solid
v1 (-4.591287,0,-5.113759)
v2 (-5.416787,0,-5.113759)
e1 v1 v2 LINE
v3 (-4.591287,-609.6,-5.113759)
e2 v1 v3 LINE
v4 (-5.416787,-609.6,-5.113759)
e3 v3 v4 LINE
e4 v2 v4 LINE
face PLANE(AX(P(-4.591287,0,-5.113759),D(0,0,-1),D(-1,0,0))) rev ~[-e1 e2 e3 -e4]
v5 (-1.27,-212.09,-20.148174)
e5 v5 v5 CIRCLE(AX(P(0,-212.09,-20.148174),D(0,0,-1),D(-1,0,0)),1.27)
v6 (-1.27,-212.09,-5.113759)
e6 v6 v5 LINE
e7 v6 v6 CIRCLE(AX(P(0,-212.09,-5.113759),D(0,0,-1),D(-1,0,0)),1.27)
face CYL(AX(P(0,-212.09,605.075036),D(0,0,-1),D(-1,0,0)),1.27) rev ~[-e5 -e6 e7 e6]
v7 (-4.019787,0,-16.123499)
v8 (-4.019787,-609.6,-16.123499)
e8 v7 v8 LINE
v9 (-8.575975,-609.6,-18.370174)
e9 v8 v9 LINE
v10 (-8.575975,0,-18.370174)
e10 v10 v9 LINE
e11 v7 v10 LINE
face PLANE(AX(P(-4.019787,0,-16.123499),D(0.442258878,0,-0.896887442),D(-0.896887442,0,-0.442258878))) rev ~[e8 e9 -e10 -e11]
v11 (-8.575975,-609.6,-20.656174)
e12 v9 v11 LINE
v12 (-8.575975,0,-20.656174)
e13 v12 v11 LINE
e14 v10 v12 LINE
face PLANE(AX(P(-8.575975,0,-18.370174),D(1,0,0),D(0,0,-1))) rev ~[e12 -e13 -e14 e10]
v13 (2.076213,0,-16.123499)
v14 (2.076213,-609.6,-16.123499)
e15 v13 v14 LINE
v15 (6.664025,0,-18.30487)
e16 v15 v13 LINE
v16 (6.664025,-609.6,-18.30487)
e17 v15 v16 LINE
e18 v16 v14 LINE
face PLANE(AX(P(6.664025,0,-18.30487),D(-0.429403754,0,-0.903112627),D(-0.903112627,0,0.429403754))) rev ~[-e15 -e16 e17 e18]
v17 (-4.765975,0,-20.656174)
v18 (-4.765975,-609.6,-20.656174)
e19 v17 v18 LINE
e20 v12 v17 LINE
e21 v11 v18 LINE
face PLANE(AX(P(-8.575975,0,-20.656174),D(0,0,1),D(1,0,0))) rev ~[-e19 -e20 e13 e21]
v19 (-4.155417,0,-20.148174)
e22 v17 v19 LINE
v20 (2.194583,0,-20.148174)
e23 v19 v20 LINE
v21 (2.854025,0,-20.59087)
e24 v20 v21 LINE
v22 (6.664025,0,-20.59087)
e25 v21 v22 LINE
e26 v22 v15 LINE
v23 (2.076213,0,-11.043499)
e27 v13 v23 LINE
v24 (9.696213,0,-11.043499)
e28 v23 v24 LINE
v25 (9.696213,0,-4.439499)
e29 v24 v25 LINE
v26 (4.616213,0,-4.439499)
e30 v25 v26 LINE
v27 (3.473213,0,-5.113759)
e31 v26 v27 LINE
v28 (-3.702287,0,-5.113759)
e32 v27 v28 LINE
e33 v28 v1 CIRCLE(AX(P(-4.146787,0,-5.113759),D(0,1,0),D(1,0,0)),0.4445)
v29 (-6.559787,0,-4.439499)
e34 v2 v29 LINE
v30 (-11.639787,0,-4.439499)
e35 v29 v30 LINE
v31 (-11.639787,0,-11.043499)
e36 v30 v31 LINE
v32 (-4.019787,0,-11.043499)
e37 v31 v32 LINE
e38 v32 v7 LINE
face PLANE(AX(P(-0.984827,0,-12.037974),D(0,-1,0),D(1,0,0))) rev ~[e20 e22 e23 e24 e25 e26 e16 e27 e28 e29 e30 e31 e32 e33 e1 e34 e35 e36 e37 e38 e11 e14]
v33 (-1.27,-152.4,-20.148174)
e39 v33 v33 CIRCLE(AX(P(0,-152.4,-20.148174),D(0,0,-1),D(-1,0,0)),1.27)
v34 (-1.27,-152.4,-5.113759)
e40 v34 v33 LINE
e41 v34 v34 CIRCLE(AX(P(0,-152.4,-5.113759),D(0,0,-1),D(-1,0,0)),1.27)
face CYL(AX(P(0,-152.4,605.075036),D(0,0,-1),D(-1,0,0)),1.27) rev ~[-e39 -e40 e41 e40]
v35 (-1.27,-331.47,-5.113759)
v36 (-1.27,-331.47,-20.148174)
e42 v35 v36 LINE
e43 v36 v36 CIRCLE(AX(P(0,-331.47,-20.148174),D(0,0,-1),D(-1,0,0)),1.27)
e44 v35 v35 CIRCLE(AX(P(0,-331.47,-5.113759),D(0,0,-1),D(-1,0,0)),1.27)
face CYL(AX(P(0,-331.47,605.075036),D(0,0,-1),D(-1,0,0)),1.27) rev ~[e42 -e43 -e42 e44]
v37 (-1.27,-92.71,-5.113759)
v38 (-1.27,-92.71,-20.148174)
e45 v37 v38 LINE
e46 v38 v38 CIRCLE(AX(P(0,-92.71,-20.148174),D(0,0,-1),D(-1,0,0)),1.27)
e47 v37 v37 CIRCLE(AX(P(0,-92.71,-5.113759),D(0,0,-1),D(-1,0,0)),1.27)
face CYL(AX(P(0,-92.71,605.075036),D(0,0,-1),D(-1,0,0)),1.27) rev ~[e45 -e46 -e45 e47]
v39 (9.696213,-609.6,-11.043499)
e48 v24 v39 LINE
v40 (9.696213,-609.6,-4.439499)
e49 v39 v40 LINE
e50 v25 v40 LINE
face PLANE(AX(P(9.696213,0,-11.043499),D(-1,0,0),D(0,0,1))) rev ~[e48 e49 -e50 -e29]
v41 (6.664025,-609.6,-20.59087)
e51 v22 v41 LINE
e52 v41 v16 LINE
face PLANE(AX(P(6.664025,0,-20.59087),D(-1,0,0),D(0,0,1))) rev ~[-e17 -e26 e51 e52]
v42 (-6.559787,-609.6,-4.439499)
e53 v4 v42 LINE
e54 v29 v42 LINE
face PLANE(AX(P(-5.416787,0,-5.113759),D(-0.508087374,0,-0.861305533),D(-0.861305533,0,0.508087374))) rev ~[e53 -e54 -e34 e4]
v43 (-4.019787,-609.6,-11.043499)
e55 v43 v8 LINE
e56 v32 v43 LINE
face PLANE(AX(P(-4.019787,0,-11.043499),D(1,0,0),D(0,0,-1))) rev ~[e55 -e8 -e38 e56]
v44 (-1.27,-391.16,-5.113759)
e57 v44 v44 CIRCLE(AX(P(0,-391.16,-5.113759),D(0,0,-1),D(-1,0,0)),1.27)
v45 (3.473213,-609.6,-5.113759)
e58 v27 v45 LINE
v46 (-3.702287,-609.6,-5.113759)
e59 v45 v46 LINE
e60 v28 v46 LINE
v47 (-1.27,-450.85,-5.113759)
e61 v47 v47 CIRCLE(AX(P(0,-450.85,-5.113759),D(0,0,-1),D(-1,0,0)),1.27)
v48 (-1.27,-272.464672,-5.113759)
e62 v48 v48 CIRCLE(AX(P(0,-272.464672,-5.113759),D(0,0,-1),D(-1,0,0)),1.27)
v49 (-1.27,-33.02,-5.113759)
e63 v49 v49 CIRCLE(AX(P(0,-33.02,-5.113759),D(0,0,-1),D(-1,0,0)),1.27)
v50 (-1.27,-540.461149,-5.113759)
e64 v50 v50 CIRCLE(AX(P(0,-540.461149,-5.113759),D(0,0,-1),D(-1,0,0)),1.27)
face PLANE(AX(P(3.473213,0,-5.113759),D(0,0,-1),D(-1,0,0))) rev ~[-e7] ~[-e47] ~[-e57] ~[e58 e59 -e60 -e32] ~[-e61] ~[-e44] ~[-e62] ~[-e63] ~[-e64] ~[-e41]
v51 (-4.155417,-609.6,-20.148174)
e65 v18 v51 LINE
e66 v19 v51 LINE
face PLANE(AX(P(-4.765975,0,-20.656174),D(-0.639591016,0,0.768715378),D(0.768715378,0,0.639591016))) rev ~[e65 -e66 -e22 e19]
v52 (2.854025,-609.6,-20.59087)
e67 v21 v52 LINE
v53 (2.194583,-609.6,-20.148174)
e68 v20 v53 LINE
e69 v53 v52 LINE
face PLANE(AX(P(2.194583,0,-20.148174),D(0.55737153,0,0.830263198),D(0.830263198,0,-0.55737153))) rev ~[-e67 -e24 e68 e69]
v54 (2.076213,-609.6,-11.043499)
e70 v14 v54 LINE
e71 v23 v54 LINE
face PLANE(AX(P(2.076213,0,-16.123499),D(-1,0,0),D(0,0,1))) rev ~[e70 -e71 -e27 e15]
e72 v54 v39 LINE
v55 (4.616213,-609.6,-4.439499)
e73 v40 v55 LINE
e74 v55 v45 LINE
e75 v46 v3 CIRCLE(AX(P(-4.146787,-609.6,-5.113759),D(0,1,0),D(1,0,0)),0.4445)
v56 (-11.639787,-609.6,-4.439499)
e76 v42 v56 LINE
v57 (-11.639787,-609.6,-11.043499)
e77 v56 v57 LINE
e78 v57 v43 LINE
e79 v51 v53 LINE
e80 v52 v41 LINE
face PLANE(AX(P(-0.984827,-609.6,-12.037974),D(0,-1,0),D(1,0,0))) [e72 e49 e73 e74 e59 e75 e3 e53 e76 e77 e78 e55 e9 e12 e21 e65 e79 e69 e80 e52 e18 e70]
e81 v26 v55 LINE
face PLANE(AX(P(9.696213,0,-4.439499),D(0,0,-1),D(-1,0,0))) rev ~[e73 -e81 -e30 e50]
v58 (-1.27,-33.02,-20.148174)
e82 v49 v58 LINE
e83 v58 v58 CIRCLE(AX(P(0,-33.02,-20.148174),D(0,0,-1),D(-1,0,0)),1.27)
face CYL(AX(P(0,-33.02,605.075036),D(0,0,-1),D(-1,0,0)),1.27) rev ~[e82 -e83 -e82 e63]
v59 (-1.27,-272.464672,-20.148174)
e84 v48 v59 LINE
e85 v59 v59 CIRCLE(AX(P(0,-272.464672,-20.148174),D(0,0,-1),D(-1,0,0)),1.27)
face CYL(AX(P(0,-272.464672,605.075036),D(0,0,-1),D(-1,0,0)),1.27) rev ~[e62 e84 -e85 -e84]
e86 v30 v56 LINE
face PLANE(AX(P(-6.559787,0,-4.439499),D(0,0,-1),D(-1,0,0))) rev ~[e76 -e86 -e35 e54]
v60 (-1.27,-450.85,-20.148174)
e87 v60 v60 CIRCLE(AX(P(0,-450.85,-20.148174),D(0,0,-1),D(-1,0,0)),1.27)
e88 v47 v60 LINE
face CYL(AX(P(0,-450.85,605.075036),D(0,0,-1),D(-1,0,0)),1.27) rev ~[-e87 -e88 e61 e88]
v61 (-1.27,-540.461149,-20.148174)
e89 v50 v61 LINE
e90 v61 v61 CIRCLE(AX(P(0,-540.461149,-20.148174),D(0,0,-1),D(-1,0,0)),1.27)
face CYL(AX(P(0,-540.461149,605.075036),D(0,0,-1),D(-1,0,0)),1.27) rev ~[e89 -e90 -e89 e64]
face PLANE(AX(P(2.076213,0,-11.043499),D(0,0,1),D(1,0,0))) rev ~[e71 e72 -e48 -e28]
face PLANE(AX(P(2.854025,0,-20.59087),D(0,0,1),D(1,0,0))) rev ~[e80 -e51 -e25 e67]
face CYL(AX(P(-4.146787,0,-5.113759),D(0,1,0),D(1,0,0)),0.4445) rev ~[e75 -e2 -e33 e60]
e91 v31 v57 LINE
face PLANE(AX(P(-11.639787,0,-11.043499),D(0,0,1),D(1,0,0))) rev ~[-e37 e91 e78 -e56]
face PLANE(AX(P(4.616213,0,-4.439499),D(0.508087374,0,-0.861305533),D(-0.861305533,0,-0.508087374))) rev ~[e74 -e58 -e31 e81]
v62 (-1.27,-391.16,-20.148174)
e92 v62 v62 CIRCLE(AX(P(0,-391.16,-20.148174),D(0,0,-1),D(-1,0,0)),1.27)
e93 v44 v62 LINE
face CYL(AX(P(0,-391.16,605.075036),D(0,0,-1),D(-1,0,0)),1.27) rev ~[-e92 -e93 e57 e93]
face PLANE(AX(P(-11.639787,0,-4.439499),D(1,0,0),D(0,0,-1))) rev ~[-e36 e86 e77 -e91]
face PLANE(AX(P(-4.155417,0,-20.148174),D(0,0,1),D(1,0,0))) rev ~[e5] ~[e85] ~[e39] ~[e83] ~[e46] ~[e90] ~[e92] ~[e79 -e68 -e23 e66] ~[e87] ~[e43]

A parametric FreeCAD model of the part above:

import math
import FreeCAD as App
import Part
import Sketcher
Q = App.Units.Quantity

doc = App.newDocument("Part")
params = doc.addObject("Spreadsheet::Sheet", "Params")
for row, (alias, value) in enumerate([
    ("sketch1_width", "0.2 in"),
    ("sketch1_width2", "0.3 in"),
    ("sketch1_length", "0.2 in"),
    ("sketch1_width3", "0.15 in"),
    ("sketch1_width4", "0.25 in"),
    ("pad1_length", "24 in"),
    ("sketch2_diameter", "0.1 in"),
    ("hole_diameter", "0.1 in"),
], start=1):
    params.set(f"A{row}", alias)
    params.set(f"B{row}", "=" + value)
    params.setAlias(f"B{row}", alias)

body = doc.addObject("PartDesign::Body", "Body")

# Sketch on XZ plane
sketch1 = body.newObject("Sketcher::SketchObject", "Sketch")
sketch1.AttachmentSupport = (doc.getObject("XZ_Plane"), [""])
sketch1.MapMode = "FlatFace"
sketch1.addGeometry([
    Part.LineSegment(App.Vector(-6.56, -4.44, 0), App.Vector(-11.64, -4.44, 0)),  # 0
    Part.LineSegment(App.Vector(-11.64, -4.44, 0), App.Vector(-11.64, -11.04, 0)),  # 1
    Part.LineSegment(App.Vector(-11.64, -11.04, 0), App.Vector(-4.02, -11.04, 0)),  # 2
    Part.LineSegment(App.Vector(-4.02, -11.04, 0), App.Vector(-4.02, -16.12, 0)),  # 3
    Part.LineSegment(App.Vector(-4.02, -16.12, 0), App.Vector(-8.58, -18.37, 0)),  # 4
    Part.LineSegment(App.Vector(-8.58, -18.37, 0), App.Vector(-8.58, -20.66, 0)),  # 5
    Part.LineSegment(App.Vector(-8.58, -20.66, 0), App.Vector(-4.77, -20.66, 0)),  # 6
    Part.LineSegment(App.Vector(-4.77, -20.66, 0), App.Vector(-4.16, -20.15, 0)),  # 7
    Part.LineSegment(App.Vector(-4.16, -20.15, 0), App.Vector(2.19, -20.15, 0)),  # 8
    Part.LineSegment(App.Vector(2.19, -20.15, 0), App.Vector(2.85, -20.59, 0)),  # 9
    Part.LineSegment(App.Vector(2.85, -20.59, 0), App.Vector(6.66, -20.59, 0)),  # 10
    Part.LineSegment(App.Vector(6.66, -20.59, 0), App.Vector(6.66, -18.3, 0)),  # 11
    Part.LineSegment(App.Vector(6.66, -18.3, 0), App.Vector(2.08, -16.12, 0)),  # 12
    Part.LineSegment(App.Vector(2.08, -16.12, 0), App.Vector(2.08, -11.04, 0)),  # 13
    Part.LineSegment(App.Vector(2.08, -11.04, 0), App.Vector(9.7, -11.04, 0)),  # 14
    Part.LineSegment(App.Vector(9.7, -11.04, 0), App.Vector(9.7, -4.44, 0)),  # 15
    Part.LineSegment(App.Vector(9.7, -4.44, 0), App.Vector(4.62, -4.44, 0)),  # 16
    Part.LineSegment(App.Vector(4.62, -4.44, 0), App.Vector(3.47, -5.11, 0)),  # 17
    Part.LineSegment(App.Vector(3.47, -5.11, 0), App.Vector(-3.7, -5.11, 0)),  # 18
    Part.ArcOfCircle(Part.Circle(App.Vector(-4.15, -5.11, 0), App.Vector(0, 0, 1), 0.44), math.radians(180), math.radians(360)),  # 19
    Part.LineSegment(App.Vector(-4.59, -5.11, 0), App.Vector(-5.42, -5.11, 0)),  # 20
    Part.LineSegment(App.Vector(-5.42, -5.11, 0), App.Vector(-6.56, -4.44, 0)),  # 21
], False)
sketch1.addConstraint([
    Sketcher.Constraint("Coincident", 0, 2, 1, 1),
    Sketcher.Constraint("Coincident", 1, 2, 2, 1),
    Sketcher.Constraint("Coincident", 2, 2, 3, 1),
    Sketcher.Constraint("Coincident", 3, 2, 4, 1),
    Sketcher.Constraint("Coincident", 4, 2, 5, 1),
    Sketcher.Constraint("Coincident", 5, 2, 6, 1),
    Sketcher.Constraint("Coincident", 6, 2, 7, 1),
    Sketcher.Constraint("Coincident", 7, 2, 8, 1),
    Sketcher.Constraint("Coincident", 8, 2, 9, 1),
    Sketcher.Constraint("Coincident", 9, 2, 10, 1),
    Sketcher.Constraint("Coincident", 10, 2, 11, 1),
    Sketcher.Constraint("Coincident", 11, 2, 12, 1),
    Sketcher.Constraint("Coincident", 12, 2, 13, 1),
    Sketcher.Constraint("Coincident", 13, 2, 14, 1),
    Sketcher.Constraint("Coincident", 14, 2, 15, 1),
    Sketcher.Constraint("Coincident", 15, 2, 16, 1),
    Sketcher.Constraint("Coincident", 16, 2, 17, 1),
    Sketcher.Constraint("Coincident", 17, 2, 18, 1),
    Sketcher.Constraint("Coincident", 18, 2, 19, 2),
    Sketcher.Constraint("Coincident", 19, 1, 20, 1),
    Sketcher.Constraint("Coincident", 20, 2, 21, 1),
    Sketcher.Constraint("Coincident", 21, 2, 0, 1),
    Sketcher.Constraint("Horizontal", 0),
    Sketcher.Constraint("Vertical", 1),
    Sketcher.Constraint("Horizontal", 2),
    Sketcher.Constraint("Vertical", 3),
    Sketcher.Constraint("Vertical", 5),
    Sketcher.Constraint("Horizontal", 6),
    Sketcher.Constraint("Horizontal", 8),
    Sketcher.Constraint("Horizontal", 10),
    Sketcher.Constraint("Vertical", 11),
    Sketcher.Constraint("Vertical", 13),
    Sketcher.Constraint("Horizontal", 14),
    Sketcher.Constraint("Vertical", 15),
    Sketcher.Constraint("Horizontal", 16),
    Sketcher.Constraint("Horizontal", 18),
    Sketcher.Constraint("Horizontal", 20),
    Sketcher.Constraint("Horizontal", 3, 2, 12, 2),
    Sketcher.Constraint("Horizontal", 2, 2, 13, 2),
    Sketcher.Constraint("Horizontal", 0, 2, 15, 2),
    Sketcher.Constraint("Horizontal", 19, 3, 17, 2),
    Sketcher.Constraint("Horizontal", 18, 2, 19, 1),
    Sketcher.Constraint("Equal", 6, 10),
    Sketcher.Constraint("Equal", 2, 14),
    Sketcher.Constraint("Equal", 0, 16),
    Sketcher.Constraint("Equal", 16, 3),
    Sketcher.Constraint("Equal", 5, 11),
    Sketcher.Constraint("Equal", 7, 9),
    Sketcher.Constraint("Equal", 4, 12),
    Sketcher.Constraint("Equal", 17, 21),
    Sketcher.Constraint("DistanceX", 0, 2, 0, 1, Q("0.2 in")),
    Sketcher.Constraint("DistanceX", 2, 1, 2, 2, Q("0.3 in")),
    Sketcher.Constraint("Distance", 4, Q("0.2 in")),
    Sketcher.Constraint("DistanceX", 6, 1, 6, 2, Q("0.15 in")),
    Sketcher.Constraint("DistanceX", 8, 1, 8, 2, Q("0.25 in")),
    Sketcher.Constraint("DistanceY", 1, 2, 1, 1, Q("0.26 in")),
    Sketcher.Constraint("DistanceY", 5, 2, 5, 1, Q("0.09 in")),
    Sketcher.Constraint("Radius", 19, Q("0.0175 in")),
    Sketcher.Constraint("DistanceX", 6, 2, 9, 2, Q("0.3 in")),
    Sketcher.Constraint("DistanceX", 19, 3, 17, 2, Q("0.3 in")),
    Sketcher.Constraint("DistanceY", 6, 2, 7, 2, Q("0.02 in")),
    Sketcher.Constraint("DistanceX", 3, 2, 12, 2, Q("0.24 in")),
    Sketcher.Constraint("DistanceX", 20, 2, 19, 3, Q("0.05 in")),
    Sketcher.Constraint("DistanceY", 0, 2, -1, 1, 4.439499),
    Sketcher.Constraint("DistanceY", 19, 3, -1, 1, 5.113759),
    Sketcher.Constraint("DistanceY", 9, 2, -1, 1, 20.59087),
    Sketcher.Constraint("DistanceX", 19, 3, -1, 1, 4.146787),
])
sketch1.setExpression("Constraints[50]", "Params.sketch1_width")
sketch1.setExpression("Constraints[51]", "Params.sketch1_width2")
sketch1.setExpression("Constraints[52]", "Params.sketch1_length")
sketch1.setExpression("Constraints[53]", "Params.sketch1_width3")
sketch1.setExpression("Constraints[54]", "Params.sketch1_width4")
pad1 = body.newObject("PartDesign::Pad", "Pad")
pad1.Profile = sketch1
pad1.setExpression("Length", "Params.pad1_length")

# Sketch on XY plane
sketch2 = body.newObject("Sketcher::SketchObject", "Sketch001")
sketch2.AttachmentSupport = (doc.getObject("XY_Plane"), [""])
sketch2.MapMode = "FlatFace"
sketch2.AttachmentOffset = App.Placement(App.Vector(0, 0, -5.113759), App.Rotation())
sketch2.addGeometry([
    Part.Circle(App.Vector(0, -33, 0), App.Vector(0, 0, 1), 1.3),  # 0
    Part.Circle(App.Vector(0, -92.7, 0), App.Vector(0, 0, 1), 1.3),  # 1
    Part.Circle(App.Vector(0, -152.4, 0), App.Vector(0, 0, 1), 1.3),  # 2
    Part.Circle(App.Vector(0, -212.1, 0), App.Vector(0, 0, 1), 1.3),  # 3
    Part.Circle(App.Vector(0, -272.5, 0), App.Vector(0, 0, 1), 1.3),  # 4
    Part.Circle(App.Vector(0, -331.5, 0), App.Vector(0, 0, 1), 1.3),  # 5
    Part.Circle(App.Vector(0, -391.2, 0), App.Vector(0, 0, 1), 1.3),  # 6
    Part.Circle(App.Vector(0, -450.9, 0), App.Vector(0, 0, 1), 1.3),  # 7
    Part.Circle(App.Vector(0, -540.5, 0), App.Vector(0, 0, 1), 1.3),  # 8
], False)
sketch2.addConstraint([
    Sketcher.Constraint("Equal", 0, 1),
    Sketcher.Constraint("Equal", 1, 2),
    Sketcher.Constraint("Equal", 2, 3),
    Sketcher.Constraint("Equal", 3, 4),
    Sketcher.Constraint("Equal", 4, 5),
    Sketcher.Constraint("Equal", 5, 6),
    Sketcher.Constraint("Equal", 6, 7),
    Sketcher.Constraint("Equal", 7, 8),
    Sketcher.Constraint("PointOnObject", 0, 3, -2),
    Sketcher.Constraint("PointOnObject", 1, 3, -2),
    Sketcher.Constraint("PointOnObject", 2, 3, -2),
    Sketcher.Constraint("PointOnObject", 3, 3, -2),
    Sketcher.Constraint("PointOnObject", 4, 3, -2),
    Sketcher.Constraint("PointOnObject", 5, 3, -2),
    Sketcher.Constraint("PointOnObject", 6, 3, -2),
    Sketcher.Constraint("PointOnObject", 7, 3, -2),
    Sketcher.Constraint("PointOnObject", 8, 3, -2),
    Sketcher.Constraint("Diameter", 0, Q("0.1 in")),
    Sketcher.Constraint("DistanceY", 2, 3, -1, 1, Q("6 in")),
    Sketcher.Constraint("DistanceY", 0, 3, -1, 1, Q("1.3 in")),
    Sketcher.Constraint("DistanceY", 6, 3, -1, 1, Q("15.4 in")),
    Sketcher.Constraint("DistanceY", 3, 3, 1, 3, Q("4.7 in")),
    Sketcher.Constraint("DistanceY", 5, 3, 3, 3, Q("4.7 in")),
    Sketcher.Constraint("DistanceY", 7, 3, 5, 3, Q("4.7 in")),
    Sketcher.Constraint("DistanceY", 1, 3, -1, 1, Q("3.65 in")),
    Sketcher.Constraint("DistanceY", 4, 3, -1, 1, 272.464672),
    Sketcher.Constraint("DistanceY", 8, 3, -1, 1, 540.461149),
])
sketch2.setExpression("Constraints[17]", "Params.sketch2_diameter")
doc.recompute()
hole = body.newObject("PartDesign::Hole", "Hole")
hole.Profile = sketch2
hole.ThreadType = "None"
hole.setExpression("Diameter", "Params.hole_diameter")
hole.DepthType = "ThroughAll"

doc.recompute()
